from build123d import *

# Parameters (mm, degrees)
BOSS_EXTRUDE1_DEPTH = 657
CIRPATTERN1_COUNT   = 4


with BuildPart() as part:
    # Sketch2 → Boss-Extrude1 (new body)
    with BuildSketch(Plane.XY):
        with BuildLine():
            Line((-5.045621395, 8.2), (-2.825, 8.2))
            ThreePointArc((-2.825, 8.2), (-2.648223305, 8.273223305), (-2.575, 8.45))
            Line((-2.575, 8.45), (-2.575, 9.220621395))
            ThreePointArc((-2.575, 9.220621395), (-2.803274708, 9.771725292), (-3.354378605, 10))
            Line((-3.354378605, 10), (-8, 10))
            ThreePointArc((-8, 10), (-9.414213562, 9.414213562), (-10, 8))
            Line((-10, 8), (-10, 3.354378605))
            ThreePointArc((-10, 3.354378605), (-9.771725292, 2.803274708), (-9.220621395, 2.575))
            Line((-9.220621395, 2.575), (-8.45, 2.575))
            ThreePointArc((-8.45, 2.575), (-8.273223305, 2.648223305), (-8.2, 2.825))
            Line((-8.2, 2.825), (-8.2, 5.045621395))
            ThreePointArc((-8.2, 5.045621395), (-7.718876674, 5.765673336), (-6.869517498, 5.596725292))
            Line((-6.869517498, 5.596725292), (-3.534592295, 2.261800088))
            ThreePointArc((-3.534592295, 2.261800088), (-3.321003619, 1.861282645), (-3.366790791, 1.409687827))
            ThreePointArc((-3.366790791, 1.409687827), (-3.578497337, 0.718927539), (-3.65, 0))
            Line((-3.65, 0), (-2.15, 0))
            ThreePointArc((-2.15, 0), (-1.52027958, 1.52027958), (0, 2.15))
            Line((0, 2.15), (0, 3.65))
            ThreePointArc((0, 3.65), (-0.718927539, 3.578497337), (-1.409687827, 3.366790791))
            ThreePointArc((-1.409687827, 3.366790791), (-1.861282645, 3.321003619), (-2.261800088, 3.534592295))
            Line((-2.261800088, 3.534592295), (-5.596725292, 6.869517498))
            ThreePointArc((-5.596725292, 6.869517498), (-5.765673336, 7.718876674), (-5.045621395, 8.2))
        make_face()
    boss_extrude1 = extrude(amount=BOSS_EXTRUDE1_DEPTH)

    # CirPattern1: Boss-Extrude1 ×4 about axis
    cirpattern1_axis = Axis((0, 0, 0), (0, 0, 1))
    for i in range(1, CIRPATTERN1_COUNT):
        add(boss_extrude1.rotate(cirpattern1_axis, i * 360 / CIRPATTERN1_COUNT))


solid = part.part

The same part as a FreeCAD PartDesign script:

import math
import FreeCAD as App
import Part
import Sketcher
Q = App.Units.Quantity

doc = App.newDocument("Part")
body = doc.addObject("PartDesign::Body", "Body")

sketch1 = body.newObject("Sketcher::SketchObject", "Sketch")
sketch1.AttachmentSupport = (doc.getObject("XY_Plane"), [""])
sketch1.MapMode = "FlatFace"
sketch1.addGeometry(Part.LineSegment(App.Vector(-5.05, 8.2, 0), App.Vector(-2.83, 8.2, 0)), False)
sketch1.addGeometry(Part.ArcOfCircle(Part.Circle(App.Vector(-2.83, 8.45, 0), App.Vector(0, 0, 1), 0.25), math.radians(-90), math.radians(0)), False)
sketch1.addGeometry(Part.LineSegment(App.Vector(-2.58, 8.45, 0), App.Vector(-2.58, 9.22, 0)), False)
sketch1.addGeometry(Part.ArcOfCircle(Part.Circle(App.Vector(-3.35, 9.22, 0), App.Vector(0, 0, 1), 0.78), math.radians(0), math.radians(90)), False)
sketch1.addGeometry(Part.LineSegment(App.Vector(-3.35, 10, 0), App.Vector(-8, 10, 0)), False)
sketch1.addGeometry(Part.ArcOfCircle(Part.Circle(App.Vector(-8, 8, 0), App.Vector(0, 0, 1), 2), math.radians(90), math.radians(180)), False)
sketch1.addGeometry(Part.LineSegment(App.Vector(-10, 8, 0), App.Vector(-10, 3.35, 0)), False)
sketch1.addGeometry(Part.ArcOfCircle(Part.Circle(App.Vector(-9.22, 3.35, 0), App.Vector(0, 0, 1), 0.78), math.radians(180), math.radians(270)), False)
sketch1.addGeometry(Part.LineSegment(App.Vector(-9.22, 2.58, 0), App.Vector(-8.45, 2.58, 0)), False)
sketch1.addGeometry(Part.ArcOfCircle(Part.Circle(App.Vector(-8.45, 2.83, 0), App.Vector(0, 0, 1), 0.25), math.radians(-90), math.radians(0)), False)
sketch1.addGeometry(Part.LineSegment(App.Vector(-8.2, 2.83, 0), App.Vector(-8.2, 5.05, 0)), False)
sketch1.addGeometry(Part.ArcOfCircle(Part.Circle(App.Vector(-7.42, 5.05, 0), App.Vector(0, 0, 1), 0.78), math.radians(45), math.radians(180)), False)
sketch1.addGeometry(Part.LineSegment(App.Vector(-6.87, 5.6, 0), App.Vector(-3.53, 2.26, 0)), False)
sketch1.addGeometry(Part.ArcOfCircle(Part.Circle(App.Vector(-4.09, 1.71, 0), App.Vector(0, 0, 1), 0.78), math.radians(-23), math.radians(45)), False)
sketch1.addGeometry(Part.ArcOfCircle(Part.Circle(App.Vector(0, 0, 0), App.Vector(0, 0, 1), 3.65), math.radians(157), math.radians(180)), False)
sketch1.addGeometry(Part.LineSegment(App.Vector(-3.65, 0, 0), App.Vector(-2.15, 0, 0)), False)
sketch1.addGeometry(Part.ArcOfCircle(Part.Circle(App.Vector(0, 0, 0), App.Vector(0, 0, 1), 2.15), math.radians(90), math.radians(180)), False)
sketch1.addGeometry(Part.LineSegment(App.Vector(0, 2.15, 0), App.Vector(0, 3.65, 0)), False)
sketch1.addGeometry(Part.ArcOfCircle(Part.Circle(App.Vector(0, 0, 0), App.Vector(0, 0, 1), 3.65), math.radians(90), math.radians(113)), False)
sketch1.addGeometry(Part.ArcOfCircle(Part.Circle(App.Vector(-1.71, 4.09, 0), App.Vector(0, 0, 1), 0.78), math.radians(-135), math.radians(-67)), False)
sketch1.addGeometry(Part.LineSegment(App.Vector(-2.26, 3.53, 0), App.Vector(-5.6, 6.87, 0)), False)
sketch1.addGeometry(Part.ArcOfCircle(Part.Circle(App.Vector(-5.05, 7.42, 0), App.Vector(0, 0, 1), 0.78), math.radians(90), math.radians(225)), False)
sketch1.addConstraint(Sketcher.Constraint("Tangent", 0, 2, 1, 1))
sketch1.addConstraint(Sketcher.Constraint("Tangent", 1, 2, 2, 1))
sketch1.addConstraint(Sketcher.Constraint("Tangent", 2, 2, 3, 1))
sketch1.addConstraint(Sketcher.Constraint("Tangent", 3, 2, 4, 1))
sketch1.addConstraint(Sketcher.Constraint("Tangent", 4, 2, 5, 1))
sketch1.addConstraint(Sketcher.Constraint("Tangent", 5, 2, 6, 1))
sketch1.addConstraint(Sketcher.Constraint("Tangent", 6, 2, 7, 1))
sketch1.addConstraint(Sketcher.Constraint("Tangent", 7, 2, 8, 1))
sketch1.addConstraint(Sketcher.Constraint("Tangent", 8, 2, 9, 1))
sketch1.addConstraint(Sketcher.Constraint("Tangent", 9, 2, 10, 1))
sketch1.addConstraint(Sketcher.Constraint("Tangent", 10, 2, 11, 2))
sketch1.addConstraint(Sketcher.Constraint("Tangent", 11, 1, 12, 1))
sketch1.addConstraint(Sketcher.Constraint("Tangent", 12, 2, 13, 2))
sketch1.addConstraint(Sketcher.Constraint("Tangent", 13, 1, 14, 1))
sketch1.addConstraint(Sketcher.Constraint("Coincident", 14, 2, 15, 1))
sketch1.addConstraint(Sketcher.Constraint("Coincident", 15, 2, 16, 2))
sketch1.addConstraint(Sketcher.Constraint("Coincident", 16, 1, 17, 1))
sketch1.addConstraint(Sketcher.Constraint("Coincident", 17, 2, 18, 1))
sketch1.addConstraint(Sketcher.Constraint("Tangent", 18, 2, 19, 2))
sketch1.addConstraint(Sketcher.Constraint("Tangent", 19, 1, 20, 1))
sketch1.addConstraint(Sketcher.Constraint("Tangent", 20, 2, 21, 2))
sketch1.addConstraint(Sketcher.Constraint("Tangent", 21, 1, 0, 1))
sketch1.addConstraint(Sketcher.Constraint("Horizontal", 0))
sketch1.addConstraint(Sketcher.Constraint("Vertical", 2))
sketch1.addConstraint(Sketcher.Constraint("Horizontal", 4))
sketch1.addConstraint(Sketcher.Constraint("Vertical", 6))
sketch1.addConstraint(Sketcher.Constraint("Horizontal", 8))
sketch1.addConstraint(Sketcher.Constraint("Vertical", 10))
sketch1.addConstraint(Sketcher.Constraint("Horizontal", 15))
sketch1.addConstraint(Sketcher.Constraint("Vertical", 17))
sketch1.addConstraint(Sketcher.Constraint("Coincident", 14, 3, -1, 1))
sketch1.addConstraint(Sketcher.Constraint("Coincident", 16, 3, -1, 1))
sketch1.addConstraint(Sketcher.Constraint("Coincident", 18, 3, -1, 1))
sketch1.addConstraint(Sketcher.Constraint("Equal", 3, 7))
sketch1.addConstraint(Sketcher.Constraint("Equal", 1, 9))
sketch1.addConstraint(Sketcher.Constraint("Equal", 7, 11))
sketch1.addConstraint(Sketcher.Constraint("Equal", 11, 13))
sketch1.addConstraint(Sketcher.Constraint("Equal", 14, 18))
sketch1.addConstraint(Sketcher.Constraint("Equal", 13, 19))
sketch1.addConstraint(Sketcher.Constraint("Equal", 19, 21))
sketch1.addConstraint(Sketcher.Constraint("PointOnObject", 14, 2, -1))
sketch1.addConstraint(Sketcher.Constraint("PointOnObject", 16, 1, -2))
sketch1.addConstraint(Sketcher.Constraint("Parallel", 12, 20))
sketch1.addConstraint(Sketcher.Constraint("Equal", 8, 2))
sketch1.addConstraint(Sketcher.Constraint("Equal", 4, 6))
sketch1.addConstraint(Sketcher.Constraint("Equal", 0, 10))
sketch1.addConstraint(Sketcher.Constraint("Equal", 12, 20))
sketch1.addConstraint(Sketcher.Constraint("Radius", 5, Q("2 mm")))
sketch1.addConstraint(Sketcher.Constraint("Angle", 12, Q("-45 deg")))
sketch1.addConstraint(Sketcher.Constraint("Radius", 1, Q("0.25 mm")))
sketch1.addConstraint(Sketcher.Constraint("Radius", 14, Q("3.65 mm")))
sketch1.addConstraint(Sketcher.Constraint("Radius", 16, Q("2.15 mm")))
sketch1.addConstraint(Sketcher.Constraint("DistanceX", 5, 3, -1, 1, Q("8 mm")))
sketch1.addConstraint(Sketcher.Constraint("DistanceY", -1, 1, 0, 2, Q("8.2 mm")))
sketch1.addConstraint(Sketcher.Constraint("Radius", 3, Q("0.779379 mm")))
sketch1.addConstraint(Sketcher.Constraint("DistanceX", 1, 3, -1, 1, Q("2.825 mm")))
sketch1.addConstraint(Sketcher.Constraint("DistanceY", 11, 3, 3, 3, Q("4.175 mm")))
pad1 = body.newObject("PartDesign::Pad", "Pad")
pad1.Profile = sketch1
pad1.Length = 657
doc.recompute()

polarpattern = body.newObject("PartDesign::PolarPattern", "PolarPattern")
polarpattern.Originals = [pad1]
polarpattern.Axis = (doc.getObject("Z_Axis"), [""])
polarpattern.Angle = 360
polarpattern.Occurrences = 4
body.Tip = polarpattern

doc.recompute()
